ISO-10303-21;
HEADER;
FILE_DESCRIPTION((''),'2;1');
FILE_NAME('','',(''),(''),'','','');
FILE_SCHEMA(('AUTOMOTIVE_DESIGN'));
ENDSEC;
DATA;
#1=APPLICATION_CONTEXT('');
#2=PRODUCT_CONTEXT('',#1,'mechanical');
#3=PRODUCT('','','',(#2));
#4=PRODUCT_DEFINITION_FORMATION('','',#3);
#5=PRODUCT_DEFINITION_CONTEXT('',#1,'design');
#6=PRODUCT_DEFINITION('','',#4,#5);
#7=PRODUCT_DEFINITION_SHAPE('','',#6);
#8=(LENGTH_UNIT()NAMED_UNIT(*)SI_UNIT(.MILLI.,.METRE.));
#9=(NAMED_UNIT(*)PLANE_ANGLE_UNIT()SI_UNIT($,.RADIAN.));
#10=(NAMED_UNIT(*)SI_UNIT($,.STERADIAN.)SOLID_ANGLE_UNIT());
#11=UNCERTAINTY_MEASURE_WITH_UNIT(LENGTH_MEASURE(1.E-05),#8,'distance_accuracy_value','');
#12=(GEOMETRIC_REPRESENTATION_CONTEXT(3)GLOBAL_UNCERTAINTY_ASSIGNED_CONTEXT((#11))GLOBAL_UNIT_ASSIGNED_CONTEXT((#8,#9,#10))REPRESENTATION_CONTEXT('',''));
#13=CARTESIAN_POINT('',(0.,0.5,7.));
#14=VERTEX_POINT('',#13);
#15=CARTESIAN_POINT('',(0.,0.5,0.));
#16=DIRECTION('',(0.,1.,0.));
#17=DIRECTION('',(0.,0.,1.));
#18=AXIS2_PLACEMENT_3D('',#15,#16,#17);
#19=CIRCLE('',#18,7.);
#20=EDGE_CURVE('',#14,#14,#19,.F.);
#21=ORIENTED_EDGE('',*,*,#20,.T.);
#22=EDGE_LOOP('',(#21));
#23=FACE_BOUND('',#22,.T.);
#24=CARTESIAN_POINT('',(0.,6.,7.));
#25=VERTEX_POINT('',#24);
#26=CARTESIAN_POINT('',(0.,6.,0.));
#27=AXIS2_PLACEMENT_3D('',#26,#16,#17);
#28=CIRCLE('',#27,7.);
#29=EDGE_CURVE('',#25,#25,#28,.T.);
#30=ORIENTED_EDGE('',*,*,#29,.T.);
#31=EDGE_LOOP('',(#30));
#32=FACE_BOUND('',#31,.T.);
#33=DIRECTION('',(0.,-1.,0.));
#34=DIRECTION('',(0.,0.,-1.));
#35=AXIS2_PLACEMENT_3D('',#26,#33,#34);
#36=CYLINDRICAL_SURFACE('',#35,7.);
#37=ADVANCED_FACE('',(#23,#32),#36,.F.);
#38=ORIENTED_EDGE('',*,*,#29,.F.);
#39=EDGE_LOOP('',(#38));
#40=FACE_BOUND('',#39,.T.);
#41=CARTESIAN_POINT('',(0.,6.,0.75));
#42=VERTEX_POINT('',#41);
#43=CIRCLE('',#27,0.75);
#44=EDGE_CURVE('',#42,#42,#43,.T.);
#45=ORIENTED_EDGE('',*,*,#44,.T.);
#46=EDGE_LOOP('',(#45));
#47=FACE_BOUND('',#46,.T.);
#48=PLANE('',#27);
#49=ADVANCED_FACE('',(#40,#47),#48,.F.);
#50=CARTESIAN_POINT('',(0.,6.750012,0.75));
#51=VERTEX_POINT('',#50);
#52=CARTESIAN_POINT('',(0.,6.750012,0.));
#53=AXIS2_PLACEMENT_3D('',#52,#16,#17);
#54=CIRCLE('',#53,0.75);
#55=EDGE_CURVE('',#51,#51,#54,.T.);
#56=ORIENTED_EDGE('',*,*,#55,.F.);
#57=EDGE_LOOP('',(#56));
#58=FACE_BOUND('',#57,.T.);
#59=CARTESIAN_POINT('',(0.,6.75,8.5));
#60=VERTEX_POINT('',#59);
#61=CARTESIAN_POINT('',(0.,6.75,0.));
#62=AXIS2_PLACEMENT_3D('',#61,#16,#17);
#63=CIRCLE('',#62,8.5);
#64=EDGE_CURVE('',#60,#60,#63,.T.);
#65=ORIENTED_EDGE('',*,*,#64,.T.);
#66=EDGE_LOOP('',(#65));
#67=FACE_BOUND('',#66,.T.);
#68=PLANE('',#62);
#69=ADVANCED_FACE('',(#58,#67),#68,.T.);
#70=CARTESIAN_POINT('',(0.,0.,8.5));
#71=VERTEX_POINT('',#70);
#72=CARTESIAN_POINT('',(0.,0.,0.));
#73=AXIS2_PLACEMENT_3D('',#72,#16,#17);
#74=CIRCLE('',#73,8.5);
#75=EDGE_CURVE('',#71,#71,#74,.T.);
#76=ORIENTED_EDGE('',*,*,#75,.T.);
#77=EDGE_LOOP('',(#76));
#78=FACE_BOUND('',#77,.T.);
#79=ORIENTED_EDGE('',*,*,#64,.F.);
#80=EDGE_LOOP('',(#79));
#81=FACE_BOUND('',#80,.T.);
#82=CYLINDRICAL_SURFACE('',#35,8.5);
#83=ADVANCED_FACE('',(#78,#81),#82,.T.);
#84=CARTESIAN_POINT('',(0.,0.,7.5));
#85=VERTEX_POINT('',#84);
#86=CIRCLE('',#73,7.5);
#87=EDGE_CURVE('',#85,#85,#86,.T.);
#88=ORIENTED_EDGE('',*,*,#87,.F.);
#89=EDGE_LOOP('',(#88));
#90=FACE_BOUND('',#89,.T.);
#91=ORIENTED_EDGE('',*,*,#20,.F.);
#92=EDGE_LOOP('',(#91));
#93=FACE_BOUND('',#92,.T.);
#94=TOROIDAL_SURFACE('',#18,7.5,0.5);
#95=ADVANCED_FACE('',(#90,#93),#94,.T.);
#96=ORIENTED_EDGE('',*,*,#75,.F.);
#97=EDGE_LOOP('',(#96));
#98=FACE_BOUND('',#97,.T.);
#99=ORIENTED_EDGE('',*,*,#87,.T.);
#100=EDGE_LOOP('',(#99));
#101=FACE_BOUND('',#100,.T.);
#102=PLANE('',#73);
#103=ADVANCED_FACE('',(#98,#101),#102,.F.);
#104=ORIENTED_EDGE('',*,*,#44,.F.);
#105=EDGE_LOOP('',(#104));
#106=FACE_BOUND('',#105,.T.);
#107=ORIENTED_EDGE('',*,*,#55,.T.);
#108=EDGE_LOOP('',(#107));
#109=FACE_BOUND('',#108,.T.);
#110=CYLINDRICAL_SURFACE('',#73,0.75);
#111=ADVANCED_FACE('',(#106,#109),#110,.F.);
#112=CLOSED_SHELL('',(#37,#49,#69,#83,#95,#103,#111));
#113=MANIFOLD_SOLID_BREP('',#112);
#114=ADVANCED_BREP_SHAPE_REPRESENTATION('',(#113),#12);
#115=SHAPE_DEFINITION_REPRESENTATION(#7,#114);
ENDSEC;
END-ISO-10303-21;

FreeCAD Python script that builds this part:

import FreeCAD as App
import Part
import Sketcher
Q = App.Units.Quantity


def edges_at(feature, points):
    """Names of the edges that pass closest to the given points."""
    edges = feature.Shape.Edges
    near = lambda p: min(range(len(edges)), key=lambda i: edges[i].distToShape(Part.Vertex(*p))[0])
    return sorted({f"Edge{near(p) + 1}" for p in points})

doc = App.newDocument("Part")
params = doc.addObject("Spreadsheet::Sheet", "Params")
for row, (alias, value) in enumerate([
    ("sketch1_diameter", "17 mm"),
    ("sketch1_diameter2", "14 mm"),
    ("pad1_length", "6 mm"),
    ("sketch2_diameter", "17 mm"),
    ("pad2_length", "0.75 mm"),
    ("sketch3_diameter", "1.5 mm"),
    ("fillet_radius", "0.5 mm"),
], start=1):
    params.set(f"A{row}", alias)
    params.set(f"B{row}", "=" + value)
    params.setAlias(f"B{row}", alias)

body = doc.addObject("PartDesign::Body", "Body")

# Sketch on XZ plane
sketch1 = doc.addObject("Sketcher::SketchObject", "Sketch")
body.addObject(sketch1)
sketch1.AttachmentSupport = (doc.XZ_Plane, [""])
sketch1.MapMode = "FlatFace"
sketch1.addGeometry(Part.Circle(App.Vector(0, 0, 0), App.Vector(0, 0, 1), 8), False)
sketch1.addGeometry(Part.Circle(App.Vector(0, 0, 0), App.Vector(0, 0, 1), 7), False)
sketch1.addConstraint(Sketcher.Constraint("Coincident", 0, 3, -1, 1))
sketch1.addConstraint(Sketcher.Constraint("Coincident", 1, 3, -1, 1))
sketch1.addConstraint(Sketcher.Constraint("Diameter", 0, Q("17 mm")))
sketch1.addConstraint(Sketcher.Constraint("Diameter", 1, Q("14 mm")))
sketch1.setExpression("Constraints[2]", "Params.sketch1_diameter")
sketch1.setExpression("Constraints[3]", "Params.sketch1_diameter2")
pad1 = doc.addObject("PartDesign::Pad", "Pad")
body.addObject(pad1)
pad1.Profile = sketch1
pad1.setExpression("Length", "Params.pad1_length")
pad1.Reversed = True

# Sketch on XZ plane
sketch2 = doc.addObject("Sketcher::SketchObject", "Sketch001")
body.addObject(sketch2)
sketch2.AttachmentSupport = (doc.XZ_Plane, [""])
sketch2.MapMode = "FlatFace"
sketch2.AttachmentOffset = App.Placement(App.Vector(0, 0, -6), App.Rotation())
sketch2.addGeometry(Part.Circle(App.Vector(0, 0, 0), App.Vector(0, 0, 1), 8), False)
sketch2.addConstraint(Sketcher.Constraint("Coincident", 0, 3, -1, 1))
sketch2.addConstraint(Sketcher.Constraint("Diameter", 0, Q("17 mm")))
sketch2.setExpression("Constraints[1]", "Params.sketch2_diameter")
pad2 = doc.addObject("PartDesign::Pad", "Pad001")
body.addObject(pad2)
pad2.Profile = sketch2
pad2.setExpression("Length", "Params.pad2_length")
pad2.Reversed = True

# Sketch on XZ plane
sketch3 = doc.addObject("Sketcher::SketchObject", "Sketch002")
body.addObject(sketch3)
sketch3.AttachmentSupport = (doc.XZ_Plane, [""])
sketch3.MapMode = "FlatFace"
sketch3.AttachmentOffset = App.Placement(App.Vector(0, 0, -6.75), App.Rotation())
sketch3.addGeometry(Part.Circle(App.Vector(0, 0, 0), App.Vector(0, 0, 1), 0.8), False)
sketch3.addConstraint(Sketcher.Constraint("Coincident", 0, 3, -1, 1))
sketch3.addConstraint(Sketcher.Constraint("Diameter", 0, Q("1.5 mm")))
sketch3.setExpression("Constraints[1]", "Params.sketch3_diameter")
pocket1 = doc.addObject("PartDesign::Pocket", "Pocket")
body.addObject(pocket1)
pocket1.Profile = sketch3
pocket1.Type = "ThroughAll"
pocket1.Midplane = True
doc.recompute()

fillet = doc.addObject("PartDesign::Fillet", "Fillet")
body.addObject(fillet)
fillet.Base = (pocket1, edges_at(pocket1, [(0, 0, -7)]))
fillet.setExpression("Radius", "Params.fillet_radius")

doc.recompute()
